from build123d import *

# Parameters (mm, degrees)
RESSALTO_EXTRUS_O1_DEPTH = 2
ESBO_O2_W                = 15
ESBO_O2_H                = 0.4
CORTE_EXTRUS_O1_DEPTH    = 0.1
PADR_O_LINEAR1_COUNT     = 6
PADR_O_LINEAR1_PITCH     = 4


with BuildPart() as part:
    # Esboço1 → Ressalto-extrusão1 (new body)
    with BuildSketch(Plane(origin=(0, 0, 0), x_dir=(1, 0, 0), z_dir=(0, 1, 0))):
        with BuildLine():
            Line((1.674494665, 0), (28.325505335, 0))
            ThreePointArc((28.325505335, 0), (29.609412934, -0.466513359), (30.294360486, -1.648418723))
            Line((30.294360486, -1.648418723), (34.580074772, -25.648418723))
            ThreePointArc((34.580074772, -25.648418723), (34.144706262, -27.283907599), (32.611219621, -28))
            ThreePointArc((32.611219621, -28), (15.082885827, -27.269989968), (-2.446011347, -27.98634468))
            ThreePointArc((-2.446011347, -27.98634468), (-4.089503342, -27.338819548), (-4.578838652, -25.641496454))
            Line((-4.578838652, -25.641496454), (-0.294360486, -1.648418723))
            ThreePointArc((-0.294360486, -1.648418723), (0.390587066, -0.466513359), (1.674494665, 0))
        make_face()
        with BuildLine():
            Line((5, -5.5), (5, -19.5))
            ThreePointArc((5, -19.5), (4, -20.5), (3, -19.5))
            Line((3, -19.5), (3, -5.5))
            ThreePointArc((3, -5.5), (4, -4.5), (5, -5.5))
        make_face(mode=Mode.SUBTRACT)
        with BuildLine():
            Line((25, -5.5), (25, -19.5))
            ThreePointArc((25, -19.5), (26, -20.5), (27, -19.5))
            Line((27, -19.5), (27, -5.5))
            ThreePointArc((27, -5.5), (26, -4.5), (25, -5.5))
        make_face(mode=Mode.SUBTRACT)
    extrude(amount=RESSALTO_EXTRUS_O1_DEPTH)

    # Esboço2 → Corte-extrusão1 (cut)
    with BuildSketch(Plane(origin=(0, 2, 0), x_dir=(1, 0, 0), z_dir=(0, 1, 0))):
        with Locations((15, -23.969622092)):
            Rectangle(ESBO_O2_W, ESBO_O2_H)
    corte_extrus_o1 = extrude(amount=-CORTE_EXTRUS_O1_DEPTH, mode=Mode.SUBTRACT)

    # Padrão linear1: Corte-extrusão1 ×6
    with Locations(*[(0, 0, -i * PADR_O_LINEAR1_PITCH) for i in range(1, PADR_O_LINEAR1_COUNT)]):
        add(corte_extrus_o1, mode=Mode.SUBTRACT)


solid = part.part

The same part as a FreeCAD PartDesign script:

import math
import FreeCAD as App
import Part
import Sketcher


def add_polygon(sketch, points):
    """Adds a closed chain of lines whose ends are joined by coincident constraints."""
    first, n = sketch.GeometryCount, len(points)
    for a, b in zip(points, points[1:] + points[:1]):
        sketch.addGeometry(Part.LineSegment(App.Vector(*a, 0), App.Vector(*b, 0)), False)
    for i in range(n):
        sketch.addConstraint(Sketcher.Constraint("Coincident", first + i, 2, first + (i + 1) % n, 1))

doc = App.newDocument("Part")
body = doc.addObject("PartDesign::Body", "Body")

sketch1 = body.newObject("Sketcher::SketchObject", "Sketch")
sketch1.AttachmentSupport = (doc.getObject("XZ_Plane"), [""])
sketch1.MapMode = "FlatFace"
sketch1.addGeometry([
    Part.LineSegment(App.Vector(28.3, 0, 0), App.Vector(1.7, 0, 0)),
    Part.ArcOfCircle(Part.Circle(App.Vector(1.7, 2, 0), App.Vector(0, 0, 1), 2), math.radians(-170), math.radians(-90)),
    Part.LineSegment(App.Vector(-0.3, 1.6, 0), App.Vector(-4.6, 25.6, 0)),
    Part.ArcOfCircle(Part.Circle(App.Vector(-2.6, 26, 0), App.Vector(0, 0, 1), 2), math.radians(85), math.radians(190)),
    Part.ArcOfCircle(Part.Circle(App.Vector(15, 240.1, 0), App.Vector(0, 0, 1), 212.8), math.radians(-94.7), math.radians(-85.25)),
    Part.ArcOfCircle(Part.Circle(App.Vector(32.6, 26, 0), App.Vector(0, 0, 1), 2), math.radians(-10), math.radians(90)),
    Part.LineSegment(App.Vector(34.6, 25.6, 0), App.Vector(30.3, 1.6, 0)),
    Part.ArcOfCircle(Part.Circle(App.Vector(28.3, 2, 0), App.Vector(0, 0, 1), 2), math.radians(-90), math.radians(-10)),
    Part.ArcOfCircle(Part.Circle(App.Vector(26, 5.5, 0), App.Vector(0, 0, 1), 1), math.radians(180), math.radians(360)),
    Part.LineSegment(App.Vector(27, 5.5, 0), App.Vector(27, 19.5, 0)),
    Part.ArcOfCircle(Part.Circle(App.Vector(26, 19.5, 0), App.Vector(0, 0, 1), 1), math.radians(0), math.radians(180)),
    Part.LineSegment(App.Vector(25, 19.5, 0), App.Vector(25, 5.5, 0)),
    Part.LineSegment(App.Vector(5, 5.5, 0), App.Vector(5, 19.5, 0)),
    Part.ArcOfCircle(Part.Circle(App.Vector(4, 19.5, 0), App.Vector(0, 0, 1), 1), math.radians(0), math.radians(180)),
    Part.LineSegment(App.Vector(3, 19.5, 0), App.Vector(3, 5.5, 0)),
    Part.ArcOfCircle(Part.Circle(App.Vector(4, 5.5, 0), App.Vector(0, 0, 1), 1), math.radians(180), math.radians(360)),
], False)
sketch1.addConstraint([
    Sketcher.Constraint("Tangent", 0, 2, 1, 2),
    Sketcher.Constraint("Tangent", 1, 1, 2, 1),
    Sketcher.Constraint("Tangent", 2, 2, 3, 2),
    Sketcher.Constraint("Tangent", 3, 1, 4, 1),
    Sketcher.Constraint("Coincident", 4, 2, 5, 2),
    Sketcher.Constraint("Tangent", 5, 1, 6, 1),
    Sketcher.Constraint("Tangent", 6, 2, 7, 2),
    Sketcher.Constraint("Tangent", 7, 1, 0, 1),
    Sketcher.Constraint("Tangent", 8, 2, 9, 1),
    Sketcher.Constraint("Tangent", 9, 2, 10, 1),
    Sketcher.Constraint("Tangent", 10, 2, 11, 1),
    Sketcher.Constraint("Tangent", 11, 2, 8, 1),
    Sketcher.Constraint("Tangent", 12, 2, 13, 1),
    Sketcher.Constraint("Tangent", 13, 2, 14, 1),
    Sketcher.Constraint("Tangent", 14, 2, 15, 1),
    Sketcher.Constraint("Tangent", 15, 2, 12, 1),
    Sketcher.Constraint("Horizontal", 0),
    Sketcher.Constraint("Vertical", 9),
    Sketcher.Constraint("Vertical", 11),
    Sketcher.Constraint("Vertical", 12),
    Sketcher.Constraint("Vertical", 14),
    Sketcher.Constraint("Equal", 1, 3),
    Sketcher.Constraint("Equal", 3, 5),
    Sketcher.Constraint("Equal", 5, 7),
    Sketcher.Constraint("Equal", 10, 13),
    Sketcher.Constraint("PointOnObject", 0, 2, -1),
    Sketcher.Constraint("Horizontal", 10, 3, 13, 3),
    Sketcher.Constraint("Horizontal", 8, 3, 15, 3),
    Sketcher.Constraint("Horizontal", 1, 1, 6, 2),
    Sketcher.Constraint("Vertical", 5, 3, 4, 2),
    Sketcher.Constraint("Radius", 1, 2.0),
    Sketcher.Constraint("Radius", 8, 1.0),
    Sketcher.Constraint("DistanceY", 9, 1, 9, 2, 14.0),
    Sketcher.Constraint("DistanceX", -1, 1, 4, 3, 15.0),
    Sketcher.Constraint("DistanceY", -1, 1, 5, 3, 26.0),
    Sketcher.Constraint("DistanceX", -1, 1, 8, 3, 26.0),
    Sketcher.Constraint("DistanceX", -1, 1, 13, 3, 4.0),
    Sketcher.Constraint("DistanceY", -1, 1, 8, 3, 5.5),
    Sketcher.Constraint("Radius", 4, 212.792367),
    Sketcher.Constraint("DistanceX", 0, 2, 0, 1, 26.651011),
    Sketcher.Constraint("Distance", 2, 24.372618),
    Sketcher.Constraint("Distance", 6, 24.37965),
])
pad1 = body.newObject("PartDesign::Pad", "Pad")
pad1.Profile = sketch1
pad1.Length = 2
pad1.Reversed = True

sketch2 = body.newObject("Sketcher::SketchObject", "Sketch001")
sketch2.AttachmentSupport = (doc.getObject("XZ_Plane"), [""])
sketch2.MapMode = "FlatFace"
sketch2.AttachmentOffset = App.Placement(App.Vector(0, 0, -2), App.Rotation())
add_polygon(sketch2, [(7.5, 23.77), (7.5, 24.17), (22.5, 24.17), (22.5, 23.77)])
sketch2.addConstraint([
    Sketcher.Constraint("Vertical", 0),
    Sketcher.Constraint("Horizontal", 1),
    Sketcher.Constraint("Vertical", 2),
    Sketcher.Constraint("Horizontal", 3),
    Sketcher.Constraint("DistanceX", 1, 1, 1, 2, 15.0),
    Sketcher.Constraint("DistanceY", 0, 1, 0, 2, 0.4),
    Sketcher.Constraint("DistanceX", -1, 1, 0, 2, 7.5),
    Sketcher.Constraint("DistanceY", -1, 1, 0, 2, 24.169622),
])
pocket1 = body.newObject("PartDesign::Pocket", "Pocket")
pocket1.Profile = sketch2
pocket1.Length = 0.1
pocket1.Reversed = True
doc.recompute()

linearpattern = body.newObject("PartDesign::LinearPattern", "LinearPattern")
linearpattern.Originals = [pocket1]
linearpattern.Direction = (doc.getObject("Z_Axis"), [""])
linearpattern.Mode = "offset"
linearpattern.Offset = 4
linearpattern.Occurrences = 6
linearpattern.Reversed = True
body.Tip = linearpattern

doc.recompute()
